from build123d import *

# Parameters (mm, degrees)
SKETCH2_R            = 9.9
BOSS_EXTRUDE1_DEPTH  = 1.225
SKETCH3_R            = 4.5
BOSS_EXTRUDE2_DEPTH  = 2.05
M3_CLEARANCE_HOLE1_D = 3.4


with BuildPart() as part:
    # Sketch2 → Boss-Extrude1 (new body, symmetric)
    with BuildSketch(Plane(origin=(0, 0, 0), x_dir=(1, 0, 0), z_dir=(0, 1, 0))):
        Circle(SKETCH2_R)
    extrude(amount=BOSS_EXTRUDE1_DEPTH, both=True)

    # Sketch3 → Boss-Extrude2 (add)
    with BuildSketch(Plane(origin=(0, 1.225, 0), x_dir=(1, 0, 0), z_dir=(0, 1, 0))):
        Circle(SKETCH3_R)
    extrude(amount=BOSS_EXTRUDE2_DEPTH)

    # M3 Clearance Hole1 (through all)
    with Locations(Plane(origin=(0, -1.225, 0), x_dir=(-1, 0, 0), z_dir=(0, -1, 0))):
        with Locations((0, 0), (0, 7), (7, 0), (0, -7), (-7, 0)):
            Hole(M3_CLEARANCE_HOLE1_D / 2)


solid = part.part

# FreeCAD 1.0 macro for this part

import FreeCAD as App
import Part
import Sketcher

V = App.Vector
Q = App.Units.Quantity

doc = App.newDocument("Part")
body = doc.addObject("PartDesign::Body", "Body")

# Sketch on XZ plane
sketch1 = body.newObject("Sketcher::SketchObject", "Sketch")
sketch1.AttachmentSupport = (doc.getObject("XZ_Plane"), [""])
sketch1.MapMode = "FlatFace"
sketch1.addGeometry(Part.Circle(V(0, 0, 0), V(0, 0, 1), 9.9), False)
sketch1.addConstraint(Sketcher.Constraint("Coincident", 0, 3, -1, 1))
sketch1.addConstraint(Sketcher.Constraint("Diameter", 0, Q("19.8 mm")))
pad1 = body.newObject("PartDesign::Pad", "Pad")
pad1.Profile = sketch1
pad1.Length = 2.45
pad1.Midplane = True

# Sketch on XZ plane
sketch2 = body.newObject("Sketcher::SketchObject", "Sketch001")
sketch2.AttachmentSupport = (doc.getObject("XZ_Plane"), [""])
sketch2.MapMode = "FlatFace"
sketch2.AttachmentOffset = App.Placement(V(0, 0, -1.225), App.Rotation())
sketch2.addGeometry(Part.Circle(V(0, 0, 0), V(0, 0, 1), 4.5), False)
sketch2.addConstraint(Sketcher.Constraint("Coincident", 0, 3, -1, 1))
sketch2.addConstraint(Sketcher.Constraint("Diameter", 0, Q("9 mm")))
pad2 = body.newObject("PartDesign::Pad", "Pad001")
pad2.Profile = sketch2
pad2.Length = 2.05
pad2.Reversed = True

# Sketch on XZ plane
sketch3 = body.newObject("Sketcher::SketchObject", "Sketch002")
sketch3.AttachmentSupport = (doc.getObject("XZ_Plane"), [""])
sketch3.MapMode = "FlatFace"
sketch3.AttachmentOffset = App.Placement(V(0, 0, 1.225), App.Rotation())
sketch3.addGeometry(Part.Circle(V(0, 0, 0), V(0, 0, 1), 1.7), False)
sketch3.addGeometry(Part.Circle(V(0, -7, 0), V(0, 0, 1), 1.7), False)
sketch3.addGeometry(Part.Circle(V(-7, 0, 0), V(0, 0, 1), 1.7), False)
sketch3.addGeometry(Part.Circle(V(0, 7, 0), V(0, 0, 1), 1.7), False)
sketch3.addGeometry(Part.Circle(V(7, 0, 0), V(0, 0, 1), 1.7), False)
sketch3.addConstraint(Sketcher.Constraint("Coincident", 0, 3, -1, 1))
sketch3.addConstraint(Sketcher.Constraint("Equal", 0, 1))
sketch3.addConstraint(Sketcher.Constraint("Equal", 1, 2))
sketch3.addConstraint(Sketcher.Constraint("Equal", 2, 3))
sketch3.addConstraint(Sketcher.Constraint("Equal", 3, 4))
sketch3.addConstraint(Sketcher.Constraint("Symmetric", 1, 3, 3, 3, -1, 1))
sketch3.addConstraint(Sketcher.Constraint("Symmetric", 2, 3, 4, 3, -1, 1))
sketch3.addConstraint(Sketcher.Constraint("PointOnObject", 1, 3, -2))
sketch3.addConstraint(Sketcher.Constraint("PointOnObject", 2, 3, -1))
sketch3.addConstraint(Sketcher.Constraint("Diameter", 0, Q("3.4 mm")))
sketch3.addConstraint(Sketcher.Constraint("DistanceY", 1, 3, -1, 1, Q("7 mm")))
sketch3.addConstraint(Sketcher.Constraint("DistanceX", 2, 3, -1, 1, Q("7 mm")))
doc.recompute()
hole = body.newObject("PartDesign::Hole", "Hole")
hole.Profile = sketch3
hole.ThreadType = "None"
hole.Diameter = 3.4
hole.DepthType = "ThroughAll"

doc.recompute()
